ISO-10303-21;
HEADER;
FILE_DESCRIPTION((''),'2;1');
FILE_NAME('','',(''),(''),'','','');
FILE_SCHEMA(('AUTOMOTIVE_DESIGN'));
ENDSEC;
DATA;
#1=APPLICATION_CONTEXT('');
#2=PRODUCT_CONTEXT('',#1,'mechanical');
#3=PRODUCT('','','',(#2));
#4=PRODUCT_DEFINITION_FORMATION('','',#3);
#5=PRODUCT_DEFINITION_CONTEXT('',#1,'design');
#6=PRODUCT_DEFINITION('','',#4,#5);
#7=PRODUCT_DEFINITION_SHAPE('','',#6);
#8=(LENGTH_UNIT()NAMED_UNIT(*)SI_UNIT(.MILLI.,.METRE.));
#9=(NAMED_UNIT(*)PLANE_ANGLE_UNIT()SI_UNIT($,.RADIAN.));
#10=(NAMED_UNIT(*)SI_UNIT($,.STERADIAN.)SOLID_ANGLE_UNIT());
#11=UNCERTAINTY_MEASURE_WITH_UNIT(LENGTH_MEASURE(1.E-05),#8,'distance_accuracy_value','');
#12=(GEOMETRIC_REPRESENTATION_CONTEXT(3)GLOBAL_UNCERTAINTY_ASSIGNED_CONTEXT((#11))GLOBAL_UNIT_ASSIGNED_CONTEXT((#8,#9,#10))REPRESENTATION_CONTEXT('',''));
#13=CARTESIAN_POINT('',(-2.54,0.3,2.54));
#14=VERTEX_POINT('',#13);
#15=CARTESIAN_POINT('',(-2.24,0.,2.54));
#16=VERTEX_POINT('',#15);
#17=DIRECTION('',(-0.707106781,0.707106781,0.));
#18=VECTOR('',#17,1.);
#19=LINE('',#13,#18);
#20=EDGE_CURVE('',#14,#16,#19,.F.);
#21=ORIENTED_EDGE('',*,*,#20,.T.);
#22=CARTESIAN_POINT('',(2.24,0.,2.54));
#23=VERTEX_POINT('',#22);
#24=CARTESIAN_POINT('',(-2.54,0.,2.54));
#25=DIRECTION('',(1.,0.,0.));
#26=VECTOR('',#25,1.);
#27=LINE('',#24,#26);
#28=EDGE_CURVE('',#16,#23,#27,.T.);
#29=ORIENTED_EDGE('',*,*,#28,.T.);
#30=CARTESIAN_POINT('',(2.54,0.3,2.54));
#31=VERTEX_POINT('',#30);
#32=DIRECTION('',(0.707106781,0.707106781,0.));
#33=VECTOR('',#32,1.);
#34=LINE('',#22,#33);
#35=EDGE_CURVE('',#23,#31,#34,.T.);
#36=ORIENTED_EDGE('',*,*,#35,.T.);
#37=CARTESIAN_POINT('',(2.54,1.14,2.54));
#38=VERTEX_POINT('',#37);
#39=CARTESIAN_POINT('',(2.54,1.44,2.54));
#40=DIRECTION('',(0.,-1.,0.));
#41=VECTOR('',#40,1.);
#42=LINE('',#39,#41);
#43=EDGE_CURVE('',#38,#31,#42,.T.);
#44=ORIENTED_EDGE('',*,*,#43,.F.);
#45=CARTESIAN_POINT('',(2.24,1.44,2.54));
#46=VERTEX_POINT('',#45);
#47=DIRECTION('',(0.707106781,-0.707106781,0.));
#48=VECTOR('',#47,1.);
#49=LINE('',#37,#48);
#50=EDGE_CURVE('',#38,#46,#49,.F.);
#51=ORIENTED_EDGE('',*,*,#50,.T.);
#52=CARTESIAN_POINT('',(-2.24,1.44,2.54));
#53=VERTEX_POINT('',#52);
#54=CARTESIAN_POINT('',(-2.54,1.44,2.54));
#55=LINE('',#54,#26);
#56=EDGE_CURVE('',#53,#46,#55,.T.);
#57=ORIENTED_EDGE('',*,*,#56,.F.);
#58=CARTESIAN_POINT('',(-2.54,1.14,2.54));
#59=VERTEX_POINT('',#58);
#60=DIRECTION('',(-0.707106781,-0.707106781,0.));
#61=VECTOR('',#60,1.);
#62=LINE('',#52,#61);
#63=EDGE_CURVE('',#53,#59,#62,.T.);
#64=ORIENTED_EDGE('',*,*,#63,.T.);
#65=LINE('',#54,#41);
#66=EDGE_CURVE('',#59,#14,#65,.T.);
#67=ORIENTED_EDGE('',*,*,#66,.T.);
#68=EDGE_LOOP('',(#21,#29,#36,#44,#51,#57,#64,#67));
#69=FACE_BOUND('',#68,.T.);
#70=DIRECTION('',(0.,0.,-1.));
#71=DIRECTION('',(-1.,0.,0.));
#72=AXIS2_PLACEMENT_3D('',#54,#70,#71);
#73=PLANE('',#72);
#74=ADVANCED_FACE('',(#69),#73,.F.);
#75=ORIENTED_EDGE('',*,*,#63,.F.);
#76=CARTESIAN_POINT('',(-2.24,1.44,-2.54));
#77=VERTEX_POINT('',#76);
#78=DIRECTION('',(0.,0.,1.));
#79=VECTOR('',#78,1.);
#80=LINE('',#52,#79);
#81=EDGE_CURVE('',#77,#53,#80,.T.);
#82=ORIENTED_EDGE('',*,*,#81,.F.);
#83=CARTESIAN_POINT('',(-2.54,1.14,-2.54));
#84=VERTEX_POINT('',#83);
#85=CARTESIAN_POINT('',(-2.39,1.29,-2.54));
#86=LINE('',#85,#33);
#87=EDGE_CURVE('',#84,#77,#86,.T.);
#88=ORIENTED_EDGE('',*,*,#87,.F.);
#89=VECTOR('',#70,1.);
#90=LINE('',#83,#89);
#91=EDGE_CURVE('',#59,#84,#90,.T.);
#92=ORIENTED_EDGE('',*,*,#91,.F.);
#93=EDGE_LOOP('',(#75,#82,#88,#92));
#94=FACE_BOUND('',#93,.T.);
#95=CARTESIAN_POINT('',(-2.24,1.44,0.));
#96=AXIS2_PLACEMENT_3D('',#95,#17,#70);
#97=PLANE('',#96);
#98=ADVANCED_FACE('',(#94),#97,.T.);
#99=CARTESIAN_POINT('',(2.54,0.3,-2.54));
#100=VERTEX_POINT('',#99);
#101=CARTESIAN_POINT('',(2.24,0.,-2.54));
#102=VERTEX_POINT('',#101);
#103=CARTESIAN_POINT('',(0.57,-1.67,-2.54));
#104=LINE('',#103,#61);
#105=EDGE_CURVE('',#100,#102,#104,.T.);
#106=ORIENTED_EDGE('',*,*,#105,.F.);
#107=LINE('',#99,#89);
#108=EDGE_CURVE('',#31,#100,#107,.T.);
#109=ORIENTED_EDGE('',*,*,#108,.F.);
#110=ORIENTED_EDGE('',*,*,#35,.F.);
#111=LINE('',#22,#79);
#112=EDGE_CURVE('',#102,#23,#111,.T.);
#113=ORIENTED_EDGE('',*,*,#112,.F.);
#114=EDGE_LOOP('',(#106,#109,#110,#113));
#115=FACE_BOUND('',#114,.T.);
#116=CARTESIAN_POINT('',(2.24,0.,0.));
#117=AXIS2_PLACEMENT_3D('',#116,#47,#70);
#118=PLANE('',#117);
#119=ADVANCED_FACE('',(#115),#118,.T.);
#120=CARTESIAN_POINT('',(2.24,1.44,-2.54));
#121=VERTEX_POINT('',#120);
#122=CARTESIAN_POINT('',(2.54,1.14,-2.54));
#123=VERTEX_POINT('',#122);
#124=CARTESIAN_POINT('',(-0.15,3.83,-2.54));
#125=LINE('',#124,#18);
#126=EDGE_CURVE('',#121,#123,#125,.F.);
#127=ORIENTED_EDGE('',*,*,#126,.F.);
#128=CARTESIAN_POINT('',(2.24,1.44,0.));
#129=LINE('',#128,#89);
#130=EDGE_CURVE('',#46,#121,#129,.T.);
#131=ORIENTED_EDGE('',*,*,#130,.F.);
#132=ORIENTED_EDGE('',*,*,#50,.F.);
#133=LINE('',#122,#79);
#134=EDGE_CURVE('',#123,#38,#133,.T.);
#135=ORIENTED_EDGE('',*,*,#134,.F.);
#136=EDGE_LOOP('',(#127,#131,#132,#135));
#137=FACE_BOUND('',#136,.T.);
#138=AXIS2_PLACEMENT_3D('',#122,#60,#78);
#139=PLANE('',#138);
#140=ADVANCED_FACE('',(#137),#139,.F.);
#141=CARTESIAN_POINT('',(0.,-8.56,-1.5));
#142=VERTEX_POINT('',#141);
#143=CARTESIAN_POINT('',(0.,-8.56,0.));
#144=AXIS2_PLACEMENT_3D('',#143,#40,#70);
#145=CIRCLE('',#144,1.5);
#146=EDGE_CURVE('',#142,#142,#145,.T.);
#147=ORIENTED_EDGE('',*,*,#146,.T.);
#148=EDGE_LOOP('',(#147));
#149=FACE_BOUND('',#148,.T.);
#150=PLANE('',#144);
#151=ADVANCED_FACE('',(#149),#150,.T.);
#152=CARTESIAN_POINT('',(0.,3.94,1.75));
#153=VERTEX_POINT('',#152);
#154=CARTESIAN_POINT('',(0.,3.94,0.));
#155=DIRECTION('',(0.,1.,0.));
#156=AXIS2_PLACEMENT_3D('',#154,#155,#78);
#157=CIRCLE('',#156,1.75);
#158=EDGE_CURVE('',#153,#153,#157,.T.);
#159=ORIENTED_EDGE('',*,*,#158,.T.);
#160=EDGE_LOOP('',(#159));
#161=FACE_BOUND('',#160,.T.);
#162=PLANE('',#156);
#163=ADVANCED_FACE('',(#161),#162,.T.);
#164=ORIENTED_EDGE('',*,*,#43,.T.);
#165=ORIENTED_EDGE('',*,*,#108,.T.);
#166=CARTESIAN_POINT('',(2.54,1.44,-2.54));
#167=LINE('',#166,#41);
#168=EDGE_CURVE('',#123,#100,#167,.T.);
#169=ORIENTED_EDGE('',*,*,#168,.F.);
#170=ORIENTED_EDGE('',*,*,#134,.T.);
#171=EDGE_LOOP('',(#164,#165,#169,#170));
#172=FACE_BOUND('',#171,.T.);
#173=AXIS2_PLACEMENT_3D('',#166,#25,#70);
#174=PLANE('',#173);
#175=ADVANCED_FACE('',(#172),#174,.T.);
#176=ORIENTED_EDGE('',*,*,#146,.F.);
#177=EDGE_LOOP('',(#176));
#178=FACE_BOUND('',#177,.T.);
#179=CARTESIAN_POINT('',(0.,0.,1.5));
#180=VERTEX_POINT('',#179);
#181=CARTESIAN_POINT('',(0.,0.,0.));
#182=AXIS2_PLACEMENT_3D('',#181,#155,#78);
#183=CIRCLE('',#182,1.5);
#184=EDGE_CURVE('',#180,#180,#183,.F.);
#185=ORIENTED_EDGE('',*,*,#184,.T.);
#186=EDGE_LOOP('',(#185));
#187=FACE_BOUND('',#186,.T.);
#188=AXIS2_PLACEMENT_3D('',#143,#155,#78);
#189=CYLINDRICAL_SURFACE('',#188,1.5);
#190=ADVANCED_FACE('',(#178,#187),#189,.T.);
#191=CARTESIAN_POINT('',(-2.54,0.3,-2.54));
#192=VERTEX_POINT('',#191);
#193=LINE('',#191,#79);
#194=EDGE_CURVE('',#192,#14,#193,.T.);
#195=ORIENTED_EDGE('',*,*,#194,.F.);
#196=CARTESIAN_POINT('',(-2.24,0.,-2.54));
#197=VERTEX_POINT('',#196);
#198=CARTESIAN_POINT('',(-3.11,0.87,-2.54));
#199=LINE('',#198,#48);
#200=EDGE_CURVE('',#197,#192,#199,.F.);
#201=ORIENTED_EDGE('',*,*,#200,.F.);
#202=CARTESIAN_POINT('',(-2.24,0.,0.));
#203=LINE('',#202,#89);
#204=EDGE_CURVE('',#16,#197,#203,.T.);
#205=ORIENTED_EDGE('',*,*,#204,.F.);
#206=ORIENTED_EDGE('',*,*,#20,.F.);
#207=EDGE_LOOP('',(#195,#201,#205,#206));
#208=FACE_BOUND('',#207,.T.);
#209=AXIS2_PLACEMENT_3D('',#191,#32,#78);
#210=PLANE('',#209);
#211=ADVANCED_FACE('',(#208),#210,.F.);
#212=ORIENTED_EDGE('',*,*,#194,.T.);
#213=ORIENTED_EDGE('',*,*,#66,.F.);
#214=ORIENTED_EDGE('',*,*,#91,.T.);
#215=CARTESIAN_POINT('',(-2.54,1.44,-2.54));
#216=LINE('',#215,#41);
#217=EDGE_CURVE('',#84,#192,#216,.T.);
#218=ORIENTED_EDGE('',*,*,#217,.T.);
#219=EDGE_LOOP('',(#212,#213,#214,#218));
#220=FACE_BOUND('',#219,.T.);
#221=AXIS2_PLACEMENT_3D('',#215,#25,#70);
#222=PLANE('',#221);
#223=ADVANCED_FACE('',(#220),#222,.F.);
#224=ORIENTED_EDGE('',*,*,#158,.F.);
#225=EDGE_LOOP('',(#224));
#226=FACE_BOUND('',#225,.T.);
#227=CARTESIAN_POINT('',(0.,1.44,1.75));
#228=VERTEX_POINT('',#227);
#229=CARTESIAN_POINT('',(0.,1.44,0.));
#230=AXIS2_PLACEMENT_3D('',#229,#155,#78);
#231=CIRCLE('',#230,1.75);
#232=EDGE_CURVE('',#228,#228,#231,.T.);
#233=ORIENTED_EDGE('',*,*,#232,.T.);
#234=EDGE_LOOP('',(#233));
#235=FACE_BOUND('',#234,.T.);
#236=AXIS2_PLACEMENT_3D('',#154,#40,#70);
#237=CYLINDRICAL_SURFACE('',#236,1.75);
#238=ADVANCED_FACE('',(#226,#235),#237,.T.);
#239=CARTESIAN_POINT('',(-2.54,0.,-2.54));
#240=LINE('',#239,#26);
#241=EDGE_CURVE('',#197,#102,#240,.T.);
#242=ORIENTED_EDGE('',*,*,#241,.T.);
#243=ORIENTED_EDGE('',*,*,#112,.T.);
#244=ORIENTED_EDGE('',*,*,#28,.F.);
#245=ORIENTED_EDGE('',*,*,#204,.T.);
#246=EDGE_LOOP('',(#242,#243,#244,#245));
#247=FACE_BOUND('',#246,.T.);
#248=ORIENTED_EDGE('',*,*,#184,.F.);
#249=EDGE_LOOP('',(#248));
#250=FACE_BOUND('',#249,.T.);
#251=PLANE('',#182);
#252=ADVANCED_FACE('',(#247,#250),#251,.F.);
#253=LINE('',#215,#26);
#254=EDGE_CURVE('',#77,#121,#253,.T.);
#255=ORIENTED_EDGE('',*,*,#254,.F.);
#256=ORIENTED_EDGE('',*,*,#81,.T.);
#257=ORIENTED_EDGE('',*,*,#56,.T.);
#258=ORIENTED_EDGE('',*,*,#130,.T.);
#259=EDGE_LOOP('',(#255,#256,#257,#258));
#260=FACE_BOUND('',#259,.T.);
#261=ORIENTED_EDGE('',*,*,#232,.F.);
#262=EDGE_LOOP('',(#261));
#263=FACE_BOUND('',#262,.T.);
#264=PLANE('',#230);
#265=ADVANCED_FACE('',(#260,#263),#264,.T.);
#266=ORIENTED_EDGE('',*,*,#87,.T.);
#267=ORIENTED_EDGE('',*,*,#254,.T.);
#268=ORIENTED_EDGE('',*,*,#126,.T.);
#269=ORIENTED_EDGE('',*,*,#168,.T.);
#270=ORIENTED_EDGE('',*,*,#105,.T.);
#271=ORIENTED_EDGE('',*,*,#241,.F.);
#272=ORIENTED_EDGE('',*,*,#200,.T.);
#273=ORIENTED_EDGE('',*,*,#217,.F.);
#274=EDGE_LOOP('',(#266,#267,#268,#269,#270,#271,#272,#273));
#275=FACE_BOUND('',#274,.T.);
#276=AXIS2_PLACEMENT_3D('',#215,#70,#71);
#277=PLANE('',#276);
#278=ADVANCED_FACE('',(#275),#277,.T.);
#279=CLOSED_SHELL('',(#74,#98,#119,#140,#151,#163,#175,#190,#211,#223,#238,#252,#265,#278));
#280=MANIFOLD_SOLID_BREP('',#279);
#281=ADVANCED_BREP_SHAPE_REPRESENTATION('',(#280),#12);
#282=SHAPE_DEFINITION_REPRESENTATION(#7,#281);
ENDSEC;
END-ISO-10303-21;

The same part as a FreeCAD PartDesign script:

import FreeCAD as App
import Part
import Sketcher

V = App.Vector
Q = App.Units.Quantity


def edges_at(feature, points):
    """Names of the edges that pass closest to the given points."""
    edges = feature.Shape.Edges
    near = lambda p: min(range(len(edges)), key=lambda i: edges[i].distToShape(Part.Vertex(*p))[0])
    return sorted({f"Edge{near(p) + 1}" for p in points})


def add_polygon(sketch, points):
    """Adds a closed chain of lines whose ends are joined by coincident constraints."""
    first, n = sketch.GeometryCount, len(points)
    for a, b in zip(points, points[1:] + points[:1]):
        sketch.addGeometry(Part.LineSegment(App.Vector(*a, 0), App.Vector(*b, 0)), False)
    for i in range(n):
        sketch.addConstraint(Sketcher.Constraint("Coincident", first + i, 2, first + (i + 1) % n, 1))

doc = App.newDocument("Part")
body = doc.addObject("PartDesign::Body", "Body")

sketch1 = body.newObject("Sketcher::SketchObject", "Sketch")
sketch1.AttachmentSupport = (doc.getObject("XZ_Plane"), [""])
sketch1.MapMode = "FlatFace"
add_polygon(sketch1, [(-3, -3), (-3, 3), (3, 3), (3, -3)])
sketch1.addConstraint([
    Sketcher.Constraint("Vertical", 0),
    Sketcher.Constraint("Horizontal", 1),
    Sketcher.Constraint("Vertical", 2),
    Sketcher.Constraint("Horizontal", 3),
    Sketcher.Constraint("Symmetric", 0, 2, 2, 2, -1, 1),
    Sketcher.Constraint("Equal", 3, 0),
    Sketcher.Constraint("DistanceX", 1, 1, 1, 2, Q("5.08 mm")),
])
pad1 = body.newObject("PartDesign::Pad", "Pad")
pad1.Profile = sketch1
pad1.Length = 1.44
pad1.Reversed = True

sketch2 = body.newObject("Sketcher::SketchObject", "Sketch001")
sketch2.AttachmentSupport = (doc.getObject("XZ_Plane"), [""])
sketch2.MapMode = "FlatFace"
sketch2.AttachmentOffset = App.Placement(V(0, 0, -1.44), App.Rotation())
sketch2.addGeometry(Part.Circle(V(0, 0, 0), V(0, 0, 1), 1.5), False)
sketch2.addConstraint([
    Sketcher.Constraint("Coincident", 0, 3, -1, 1),
    Sketcher.Constraint("Diameter", 0, Q("3 mm")),
])
pad2 = body.newObject("PartDesign::Pad", "Pad001")
pad2.Profile = sketch2
pad2.Length = 10

sketch3 = body.newObject("Sketcher::SketchObject", "Sketch002")
sketch3.AttachmentSupport = (doc.getObject("XZ_Plane"), [""])
sketch3.MapMode = "FlatFace"
sketch3.AttachmentOffset = App.Placement(V(0, 0, -1.44), App.Rotation())
sketch3.addGeometry(Part.Circle(V(0, 0, 0), V(0, 0, 1), 1.8), False)
sketch3.addConstraint([
    Sketcher.Constraint("Coincident", 0, 3, -1, 1),
    Sketcher.Constraint("Diameter", 0, Q("3.5 mm")),
])
pad3 = body.newObject("PartDesign::Pad", "Pad002")
pad3.Profile = sketch3
pad3.Length = 2.5
pad3.Reversed = True
doc.recompute()

chamfer = body.newObject("PartDesign::Chamfer", "Chamfer")
chamfer.Base = (pad3, edges_at(pad3, [
    (2.54, 1.44, 0),
    (-2.54, 1.44, 0),
    (2.54, 0, 0),
    (-2.54, 0, 0),
]))
chamfer.Size = 0.3

doc.recompute()
